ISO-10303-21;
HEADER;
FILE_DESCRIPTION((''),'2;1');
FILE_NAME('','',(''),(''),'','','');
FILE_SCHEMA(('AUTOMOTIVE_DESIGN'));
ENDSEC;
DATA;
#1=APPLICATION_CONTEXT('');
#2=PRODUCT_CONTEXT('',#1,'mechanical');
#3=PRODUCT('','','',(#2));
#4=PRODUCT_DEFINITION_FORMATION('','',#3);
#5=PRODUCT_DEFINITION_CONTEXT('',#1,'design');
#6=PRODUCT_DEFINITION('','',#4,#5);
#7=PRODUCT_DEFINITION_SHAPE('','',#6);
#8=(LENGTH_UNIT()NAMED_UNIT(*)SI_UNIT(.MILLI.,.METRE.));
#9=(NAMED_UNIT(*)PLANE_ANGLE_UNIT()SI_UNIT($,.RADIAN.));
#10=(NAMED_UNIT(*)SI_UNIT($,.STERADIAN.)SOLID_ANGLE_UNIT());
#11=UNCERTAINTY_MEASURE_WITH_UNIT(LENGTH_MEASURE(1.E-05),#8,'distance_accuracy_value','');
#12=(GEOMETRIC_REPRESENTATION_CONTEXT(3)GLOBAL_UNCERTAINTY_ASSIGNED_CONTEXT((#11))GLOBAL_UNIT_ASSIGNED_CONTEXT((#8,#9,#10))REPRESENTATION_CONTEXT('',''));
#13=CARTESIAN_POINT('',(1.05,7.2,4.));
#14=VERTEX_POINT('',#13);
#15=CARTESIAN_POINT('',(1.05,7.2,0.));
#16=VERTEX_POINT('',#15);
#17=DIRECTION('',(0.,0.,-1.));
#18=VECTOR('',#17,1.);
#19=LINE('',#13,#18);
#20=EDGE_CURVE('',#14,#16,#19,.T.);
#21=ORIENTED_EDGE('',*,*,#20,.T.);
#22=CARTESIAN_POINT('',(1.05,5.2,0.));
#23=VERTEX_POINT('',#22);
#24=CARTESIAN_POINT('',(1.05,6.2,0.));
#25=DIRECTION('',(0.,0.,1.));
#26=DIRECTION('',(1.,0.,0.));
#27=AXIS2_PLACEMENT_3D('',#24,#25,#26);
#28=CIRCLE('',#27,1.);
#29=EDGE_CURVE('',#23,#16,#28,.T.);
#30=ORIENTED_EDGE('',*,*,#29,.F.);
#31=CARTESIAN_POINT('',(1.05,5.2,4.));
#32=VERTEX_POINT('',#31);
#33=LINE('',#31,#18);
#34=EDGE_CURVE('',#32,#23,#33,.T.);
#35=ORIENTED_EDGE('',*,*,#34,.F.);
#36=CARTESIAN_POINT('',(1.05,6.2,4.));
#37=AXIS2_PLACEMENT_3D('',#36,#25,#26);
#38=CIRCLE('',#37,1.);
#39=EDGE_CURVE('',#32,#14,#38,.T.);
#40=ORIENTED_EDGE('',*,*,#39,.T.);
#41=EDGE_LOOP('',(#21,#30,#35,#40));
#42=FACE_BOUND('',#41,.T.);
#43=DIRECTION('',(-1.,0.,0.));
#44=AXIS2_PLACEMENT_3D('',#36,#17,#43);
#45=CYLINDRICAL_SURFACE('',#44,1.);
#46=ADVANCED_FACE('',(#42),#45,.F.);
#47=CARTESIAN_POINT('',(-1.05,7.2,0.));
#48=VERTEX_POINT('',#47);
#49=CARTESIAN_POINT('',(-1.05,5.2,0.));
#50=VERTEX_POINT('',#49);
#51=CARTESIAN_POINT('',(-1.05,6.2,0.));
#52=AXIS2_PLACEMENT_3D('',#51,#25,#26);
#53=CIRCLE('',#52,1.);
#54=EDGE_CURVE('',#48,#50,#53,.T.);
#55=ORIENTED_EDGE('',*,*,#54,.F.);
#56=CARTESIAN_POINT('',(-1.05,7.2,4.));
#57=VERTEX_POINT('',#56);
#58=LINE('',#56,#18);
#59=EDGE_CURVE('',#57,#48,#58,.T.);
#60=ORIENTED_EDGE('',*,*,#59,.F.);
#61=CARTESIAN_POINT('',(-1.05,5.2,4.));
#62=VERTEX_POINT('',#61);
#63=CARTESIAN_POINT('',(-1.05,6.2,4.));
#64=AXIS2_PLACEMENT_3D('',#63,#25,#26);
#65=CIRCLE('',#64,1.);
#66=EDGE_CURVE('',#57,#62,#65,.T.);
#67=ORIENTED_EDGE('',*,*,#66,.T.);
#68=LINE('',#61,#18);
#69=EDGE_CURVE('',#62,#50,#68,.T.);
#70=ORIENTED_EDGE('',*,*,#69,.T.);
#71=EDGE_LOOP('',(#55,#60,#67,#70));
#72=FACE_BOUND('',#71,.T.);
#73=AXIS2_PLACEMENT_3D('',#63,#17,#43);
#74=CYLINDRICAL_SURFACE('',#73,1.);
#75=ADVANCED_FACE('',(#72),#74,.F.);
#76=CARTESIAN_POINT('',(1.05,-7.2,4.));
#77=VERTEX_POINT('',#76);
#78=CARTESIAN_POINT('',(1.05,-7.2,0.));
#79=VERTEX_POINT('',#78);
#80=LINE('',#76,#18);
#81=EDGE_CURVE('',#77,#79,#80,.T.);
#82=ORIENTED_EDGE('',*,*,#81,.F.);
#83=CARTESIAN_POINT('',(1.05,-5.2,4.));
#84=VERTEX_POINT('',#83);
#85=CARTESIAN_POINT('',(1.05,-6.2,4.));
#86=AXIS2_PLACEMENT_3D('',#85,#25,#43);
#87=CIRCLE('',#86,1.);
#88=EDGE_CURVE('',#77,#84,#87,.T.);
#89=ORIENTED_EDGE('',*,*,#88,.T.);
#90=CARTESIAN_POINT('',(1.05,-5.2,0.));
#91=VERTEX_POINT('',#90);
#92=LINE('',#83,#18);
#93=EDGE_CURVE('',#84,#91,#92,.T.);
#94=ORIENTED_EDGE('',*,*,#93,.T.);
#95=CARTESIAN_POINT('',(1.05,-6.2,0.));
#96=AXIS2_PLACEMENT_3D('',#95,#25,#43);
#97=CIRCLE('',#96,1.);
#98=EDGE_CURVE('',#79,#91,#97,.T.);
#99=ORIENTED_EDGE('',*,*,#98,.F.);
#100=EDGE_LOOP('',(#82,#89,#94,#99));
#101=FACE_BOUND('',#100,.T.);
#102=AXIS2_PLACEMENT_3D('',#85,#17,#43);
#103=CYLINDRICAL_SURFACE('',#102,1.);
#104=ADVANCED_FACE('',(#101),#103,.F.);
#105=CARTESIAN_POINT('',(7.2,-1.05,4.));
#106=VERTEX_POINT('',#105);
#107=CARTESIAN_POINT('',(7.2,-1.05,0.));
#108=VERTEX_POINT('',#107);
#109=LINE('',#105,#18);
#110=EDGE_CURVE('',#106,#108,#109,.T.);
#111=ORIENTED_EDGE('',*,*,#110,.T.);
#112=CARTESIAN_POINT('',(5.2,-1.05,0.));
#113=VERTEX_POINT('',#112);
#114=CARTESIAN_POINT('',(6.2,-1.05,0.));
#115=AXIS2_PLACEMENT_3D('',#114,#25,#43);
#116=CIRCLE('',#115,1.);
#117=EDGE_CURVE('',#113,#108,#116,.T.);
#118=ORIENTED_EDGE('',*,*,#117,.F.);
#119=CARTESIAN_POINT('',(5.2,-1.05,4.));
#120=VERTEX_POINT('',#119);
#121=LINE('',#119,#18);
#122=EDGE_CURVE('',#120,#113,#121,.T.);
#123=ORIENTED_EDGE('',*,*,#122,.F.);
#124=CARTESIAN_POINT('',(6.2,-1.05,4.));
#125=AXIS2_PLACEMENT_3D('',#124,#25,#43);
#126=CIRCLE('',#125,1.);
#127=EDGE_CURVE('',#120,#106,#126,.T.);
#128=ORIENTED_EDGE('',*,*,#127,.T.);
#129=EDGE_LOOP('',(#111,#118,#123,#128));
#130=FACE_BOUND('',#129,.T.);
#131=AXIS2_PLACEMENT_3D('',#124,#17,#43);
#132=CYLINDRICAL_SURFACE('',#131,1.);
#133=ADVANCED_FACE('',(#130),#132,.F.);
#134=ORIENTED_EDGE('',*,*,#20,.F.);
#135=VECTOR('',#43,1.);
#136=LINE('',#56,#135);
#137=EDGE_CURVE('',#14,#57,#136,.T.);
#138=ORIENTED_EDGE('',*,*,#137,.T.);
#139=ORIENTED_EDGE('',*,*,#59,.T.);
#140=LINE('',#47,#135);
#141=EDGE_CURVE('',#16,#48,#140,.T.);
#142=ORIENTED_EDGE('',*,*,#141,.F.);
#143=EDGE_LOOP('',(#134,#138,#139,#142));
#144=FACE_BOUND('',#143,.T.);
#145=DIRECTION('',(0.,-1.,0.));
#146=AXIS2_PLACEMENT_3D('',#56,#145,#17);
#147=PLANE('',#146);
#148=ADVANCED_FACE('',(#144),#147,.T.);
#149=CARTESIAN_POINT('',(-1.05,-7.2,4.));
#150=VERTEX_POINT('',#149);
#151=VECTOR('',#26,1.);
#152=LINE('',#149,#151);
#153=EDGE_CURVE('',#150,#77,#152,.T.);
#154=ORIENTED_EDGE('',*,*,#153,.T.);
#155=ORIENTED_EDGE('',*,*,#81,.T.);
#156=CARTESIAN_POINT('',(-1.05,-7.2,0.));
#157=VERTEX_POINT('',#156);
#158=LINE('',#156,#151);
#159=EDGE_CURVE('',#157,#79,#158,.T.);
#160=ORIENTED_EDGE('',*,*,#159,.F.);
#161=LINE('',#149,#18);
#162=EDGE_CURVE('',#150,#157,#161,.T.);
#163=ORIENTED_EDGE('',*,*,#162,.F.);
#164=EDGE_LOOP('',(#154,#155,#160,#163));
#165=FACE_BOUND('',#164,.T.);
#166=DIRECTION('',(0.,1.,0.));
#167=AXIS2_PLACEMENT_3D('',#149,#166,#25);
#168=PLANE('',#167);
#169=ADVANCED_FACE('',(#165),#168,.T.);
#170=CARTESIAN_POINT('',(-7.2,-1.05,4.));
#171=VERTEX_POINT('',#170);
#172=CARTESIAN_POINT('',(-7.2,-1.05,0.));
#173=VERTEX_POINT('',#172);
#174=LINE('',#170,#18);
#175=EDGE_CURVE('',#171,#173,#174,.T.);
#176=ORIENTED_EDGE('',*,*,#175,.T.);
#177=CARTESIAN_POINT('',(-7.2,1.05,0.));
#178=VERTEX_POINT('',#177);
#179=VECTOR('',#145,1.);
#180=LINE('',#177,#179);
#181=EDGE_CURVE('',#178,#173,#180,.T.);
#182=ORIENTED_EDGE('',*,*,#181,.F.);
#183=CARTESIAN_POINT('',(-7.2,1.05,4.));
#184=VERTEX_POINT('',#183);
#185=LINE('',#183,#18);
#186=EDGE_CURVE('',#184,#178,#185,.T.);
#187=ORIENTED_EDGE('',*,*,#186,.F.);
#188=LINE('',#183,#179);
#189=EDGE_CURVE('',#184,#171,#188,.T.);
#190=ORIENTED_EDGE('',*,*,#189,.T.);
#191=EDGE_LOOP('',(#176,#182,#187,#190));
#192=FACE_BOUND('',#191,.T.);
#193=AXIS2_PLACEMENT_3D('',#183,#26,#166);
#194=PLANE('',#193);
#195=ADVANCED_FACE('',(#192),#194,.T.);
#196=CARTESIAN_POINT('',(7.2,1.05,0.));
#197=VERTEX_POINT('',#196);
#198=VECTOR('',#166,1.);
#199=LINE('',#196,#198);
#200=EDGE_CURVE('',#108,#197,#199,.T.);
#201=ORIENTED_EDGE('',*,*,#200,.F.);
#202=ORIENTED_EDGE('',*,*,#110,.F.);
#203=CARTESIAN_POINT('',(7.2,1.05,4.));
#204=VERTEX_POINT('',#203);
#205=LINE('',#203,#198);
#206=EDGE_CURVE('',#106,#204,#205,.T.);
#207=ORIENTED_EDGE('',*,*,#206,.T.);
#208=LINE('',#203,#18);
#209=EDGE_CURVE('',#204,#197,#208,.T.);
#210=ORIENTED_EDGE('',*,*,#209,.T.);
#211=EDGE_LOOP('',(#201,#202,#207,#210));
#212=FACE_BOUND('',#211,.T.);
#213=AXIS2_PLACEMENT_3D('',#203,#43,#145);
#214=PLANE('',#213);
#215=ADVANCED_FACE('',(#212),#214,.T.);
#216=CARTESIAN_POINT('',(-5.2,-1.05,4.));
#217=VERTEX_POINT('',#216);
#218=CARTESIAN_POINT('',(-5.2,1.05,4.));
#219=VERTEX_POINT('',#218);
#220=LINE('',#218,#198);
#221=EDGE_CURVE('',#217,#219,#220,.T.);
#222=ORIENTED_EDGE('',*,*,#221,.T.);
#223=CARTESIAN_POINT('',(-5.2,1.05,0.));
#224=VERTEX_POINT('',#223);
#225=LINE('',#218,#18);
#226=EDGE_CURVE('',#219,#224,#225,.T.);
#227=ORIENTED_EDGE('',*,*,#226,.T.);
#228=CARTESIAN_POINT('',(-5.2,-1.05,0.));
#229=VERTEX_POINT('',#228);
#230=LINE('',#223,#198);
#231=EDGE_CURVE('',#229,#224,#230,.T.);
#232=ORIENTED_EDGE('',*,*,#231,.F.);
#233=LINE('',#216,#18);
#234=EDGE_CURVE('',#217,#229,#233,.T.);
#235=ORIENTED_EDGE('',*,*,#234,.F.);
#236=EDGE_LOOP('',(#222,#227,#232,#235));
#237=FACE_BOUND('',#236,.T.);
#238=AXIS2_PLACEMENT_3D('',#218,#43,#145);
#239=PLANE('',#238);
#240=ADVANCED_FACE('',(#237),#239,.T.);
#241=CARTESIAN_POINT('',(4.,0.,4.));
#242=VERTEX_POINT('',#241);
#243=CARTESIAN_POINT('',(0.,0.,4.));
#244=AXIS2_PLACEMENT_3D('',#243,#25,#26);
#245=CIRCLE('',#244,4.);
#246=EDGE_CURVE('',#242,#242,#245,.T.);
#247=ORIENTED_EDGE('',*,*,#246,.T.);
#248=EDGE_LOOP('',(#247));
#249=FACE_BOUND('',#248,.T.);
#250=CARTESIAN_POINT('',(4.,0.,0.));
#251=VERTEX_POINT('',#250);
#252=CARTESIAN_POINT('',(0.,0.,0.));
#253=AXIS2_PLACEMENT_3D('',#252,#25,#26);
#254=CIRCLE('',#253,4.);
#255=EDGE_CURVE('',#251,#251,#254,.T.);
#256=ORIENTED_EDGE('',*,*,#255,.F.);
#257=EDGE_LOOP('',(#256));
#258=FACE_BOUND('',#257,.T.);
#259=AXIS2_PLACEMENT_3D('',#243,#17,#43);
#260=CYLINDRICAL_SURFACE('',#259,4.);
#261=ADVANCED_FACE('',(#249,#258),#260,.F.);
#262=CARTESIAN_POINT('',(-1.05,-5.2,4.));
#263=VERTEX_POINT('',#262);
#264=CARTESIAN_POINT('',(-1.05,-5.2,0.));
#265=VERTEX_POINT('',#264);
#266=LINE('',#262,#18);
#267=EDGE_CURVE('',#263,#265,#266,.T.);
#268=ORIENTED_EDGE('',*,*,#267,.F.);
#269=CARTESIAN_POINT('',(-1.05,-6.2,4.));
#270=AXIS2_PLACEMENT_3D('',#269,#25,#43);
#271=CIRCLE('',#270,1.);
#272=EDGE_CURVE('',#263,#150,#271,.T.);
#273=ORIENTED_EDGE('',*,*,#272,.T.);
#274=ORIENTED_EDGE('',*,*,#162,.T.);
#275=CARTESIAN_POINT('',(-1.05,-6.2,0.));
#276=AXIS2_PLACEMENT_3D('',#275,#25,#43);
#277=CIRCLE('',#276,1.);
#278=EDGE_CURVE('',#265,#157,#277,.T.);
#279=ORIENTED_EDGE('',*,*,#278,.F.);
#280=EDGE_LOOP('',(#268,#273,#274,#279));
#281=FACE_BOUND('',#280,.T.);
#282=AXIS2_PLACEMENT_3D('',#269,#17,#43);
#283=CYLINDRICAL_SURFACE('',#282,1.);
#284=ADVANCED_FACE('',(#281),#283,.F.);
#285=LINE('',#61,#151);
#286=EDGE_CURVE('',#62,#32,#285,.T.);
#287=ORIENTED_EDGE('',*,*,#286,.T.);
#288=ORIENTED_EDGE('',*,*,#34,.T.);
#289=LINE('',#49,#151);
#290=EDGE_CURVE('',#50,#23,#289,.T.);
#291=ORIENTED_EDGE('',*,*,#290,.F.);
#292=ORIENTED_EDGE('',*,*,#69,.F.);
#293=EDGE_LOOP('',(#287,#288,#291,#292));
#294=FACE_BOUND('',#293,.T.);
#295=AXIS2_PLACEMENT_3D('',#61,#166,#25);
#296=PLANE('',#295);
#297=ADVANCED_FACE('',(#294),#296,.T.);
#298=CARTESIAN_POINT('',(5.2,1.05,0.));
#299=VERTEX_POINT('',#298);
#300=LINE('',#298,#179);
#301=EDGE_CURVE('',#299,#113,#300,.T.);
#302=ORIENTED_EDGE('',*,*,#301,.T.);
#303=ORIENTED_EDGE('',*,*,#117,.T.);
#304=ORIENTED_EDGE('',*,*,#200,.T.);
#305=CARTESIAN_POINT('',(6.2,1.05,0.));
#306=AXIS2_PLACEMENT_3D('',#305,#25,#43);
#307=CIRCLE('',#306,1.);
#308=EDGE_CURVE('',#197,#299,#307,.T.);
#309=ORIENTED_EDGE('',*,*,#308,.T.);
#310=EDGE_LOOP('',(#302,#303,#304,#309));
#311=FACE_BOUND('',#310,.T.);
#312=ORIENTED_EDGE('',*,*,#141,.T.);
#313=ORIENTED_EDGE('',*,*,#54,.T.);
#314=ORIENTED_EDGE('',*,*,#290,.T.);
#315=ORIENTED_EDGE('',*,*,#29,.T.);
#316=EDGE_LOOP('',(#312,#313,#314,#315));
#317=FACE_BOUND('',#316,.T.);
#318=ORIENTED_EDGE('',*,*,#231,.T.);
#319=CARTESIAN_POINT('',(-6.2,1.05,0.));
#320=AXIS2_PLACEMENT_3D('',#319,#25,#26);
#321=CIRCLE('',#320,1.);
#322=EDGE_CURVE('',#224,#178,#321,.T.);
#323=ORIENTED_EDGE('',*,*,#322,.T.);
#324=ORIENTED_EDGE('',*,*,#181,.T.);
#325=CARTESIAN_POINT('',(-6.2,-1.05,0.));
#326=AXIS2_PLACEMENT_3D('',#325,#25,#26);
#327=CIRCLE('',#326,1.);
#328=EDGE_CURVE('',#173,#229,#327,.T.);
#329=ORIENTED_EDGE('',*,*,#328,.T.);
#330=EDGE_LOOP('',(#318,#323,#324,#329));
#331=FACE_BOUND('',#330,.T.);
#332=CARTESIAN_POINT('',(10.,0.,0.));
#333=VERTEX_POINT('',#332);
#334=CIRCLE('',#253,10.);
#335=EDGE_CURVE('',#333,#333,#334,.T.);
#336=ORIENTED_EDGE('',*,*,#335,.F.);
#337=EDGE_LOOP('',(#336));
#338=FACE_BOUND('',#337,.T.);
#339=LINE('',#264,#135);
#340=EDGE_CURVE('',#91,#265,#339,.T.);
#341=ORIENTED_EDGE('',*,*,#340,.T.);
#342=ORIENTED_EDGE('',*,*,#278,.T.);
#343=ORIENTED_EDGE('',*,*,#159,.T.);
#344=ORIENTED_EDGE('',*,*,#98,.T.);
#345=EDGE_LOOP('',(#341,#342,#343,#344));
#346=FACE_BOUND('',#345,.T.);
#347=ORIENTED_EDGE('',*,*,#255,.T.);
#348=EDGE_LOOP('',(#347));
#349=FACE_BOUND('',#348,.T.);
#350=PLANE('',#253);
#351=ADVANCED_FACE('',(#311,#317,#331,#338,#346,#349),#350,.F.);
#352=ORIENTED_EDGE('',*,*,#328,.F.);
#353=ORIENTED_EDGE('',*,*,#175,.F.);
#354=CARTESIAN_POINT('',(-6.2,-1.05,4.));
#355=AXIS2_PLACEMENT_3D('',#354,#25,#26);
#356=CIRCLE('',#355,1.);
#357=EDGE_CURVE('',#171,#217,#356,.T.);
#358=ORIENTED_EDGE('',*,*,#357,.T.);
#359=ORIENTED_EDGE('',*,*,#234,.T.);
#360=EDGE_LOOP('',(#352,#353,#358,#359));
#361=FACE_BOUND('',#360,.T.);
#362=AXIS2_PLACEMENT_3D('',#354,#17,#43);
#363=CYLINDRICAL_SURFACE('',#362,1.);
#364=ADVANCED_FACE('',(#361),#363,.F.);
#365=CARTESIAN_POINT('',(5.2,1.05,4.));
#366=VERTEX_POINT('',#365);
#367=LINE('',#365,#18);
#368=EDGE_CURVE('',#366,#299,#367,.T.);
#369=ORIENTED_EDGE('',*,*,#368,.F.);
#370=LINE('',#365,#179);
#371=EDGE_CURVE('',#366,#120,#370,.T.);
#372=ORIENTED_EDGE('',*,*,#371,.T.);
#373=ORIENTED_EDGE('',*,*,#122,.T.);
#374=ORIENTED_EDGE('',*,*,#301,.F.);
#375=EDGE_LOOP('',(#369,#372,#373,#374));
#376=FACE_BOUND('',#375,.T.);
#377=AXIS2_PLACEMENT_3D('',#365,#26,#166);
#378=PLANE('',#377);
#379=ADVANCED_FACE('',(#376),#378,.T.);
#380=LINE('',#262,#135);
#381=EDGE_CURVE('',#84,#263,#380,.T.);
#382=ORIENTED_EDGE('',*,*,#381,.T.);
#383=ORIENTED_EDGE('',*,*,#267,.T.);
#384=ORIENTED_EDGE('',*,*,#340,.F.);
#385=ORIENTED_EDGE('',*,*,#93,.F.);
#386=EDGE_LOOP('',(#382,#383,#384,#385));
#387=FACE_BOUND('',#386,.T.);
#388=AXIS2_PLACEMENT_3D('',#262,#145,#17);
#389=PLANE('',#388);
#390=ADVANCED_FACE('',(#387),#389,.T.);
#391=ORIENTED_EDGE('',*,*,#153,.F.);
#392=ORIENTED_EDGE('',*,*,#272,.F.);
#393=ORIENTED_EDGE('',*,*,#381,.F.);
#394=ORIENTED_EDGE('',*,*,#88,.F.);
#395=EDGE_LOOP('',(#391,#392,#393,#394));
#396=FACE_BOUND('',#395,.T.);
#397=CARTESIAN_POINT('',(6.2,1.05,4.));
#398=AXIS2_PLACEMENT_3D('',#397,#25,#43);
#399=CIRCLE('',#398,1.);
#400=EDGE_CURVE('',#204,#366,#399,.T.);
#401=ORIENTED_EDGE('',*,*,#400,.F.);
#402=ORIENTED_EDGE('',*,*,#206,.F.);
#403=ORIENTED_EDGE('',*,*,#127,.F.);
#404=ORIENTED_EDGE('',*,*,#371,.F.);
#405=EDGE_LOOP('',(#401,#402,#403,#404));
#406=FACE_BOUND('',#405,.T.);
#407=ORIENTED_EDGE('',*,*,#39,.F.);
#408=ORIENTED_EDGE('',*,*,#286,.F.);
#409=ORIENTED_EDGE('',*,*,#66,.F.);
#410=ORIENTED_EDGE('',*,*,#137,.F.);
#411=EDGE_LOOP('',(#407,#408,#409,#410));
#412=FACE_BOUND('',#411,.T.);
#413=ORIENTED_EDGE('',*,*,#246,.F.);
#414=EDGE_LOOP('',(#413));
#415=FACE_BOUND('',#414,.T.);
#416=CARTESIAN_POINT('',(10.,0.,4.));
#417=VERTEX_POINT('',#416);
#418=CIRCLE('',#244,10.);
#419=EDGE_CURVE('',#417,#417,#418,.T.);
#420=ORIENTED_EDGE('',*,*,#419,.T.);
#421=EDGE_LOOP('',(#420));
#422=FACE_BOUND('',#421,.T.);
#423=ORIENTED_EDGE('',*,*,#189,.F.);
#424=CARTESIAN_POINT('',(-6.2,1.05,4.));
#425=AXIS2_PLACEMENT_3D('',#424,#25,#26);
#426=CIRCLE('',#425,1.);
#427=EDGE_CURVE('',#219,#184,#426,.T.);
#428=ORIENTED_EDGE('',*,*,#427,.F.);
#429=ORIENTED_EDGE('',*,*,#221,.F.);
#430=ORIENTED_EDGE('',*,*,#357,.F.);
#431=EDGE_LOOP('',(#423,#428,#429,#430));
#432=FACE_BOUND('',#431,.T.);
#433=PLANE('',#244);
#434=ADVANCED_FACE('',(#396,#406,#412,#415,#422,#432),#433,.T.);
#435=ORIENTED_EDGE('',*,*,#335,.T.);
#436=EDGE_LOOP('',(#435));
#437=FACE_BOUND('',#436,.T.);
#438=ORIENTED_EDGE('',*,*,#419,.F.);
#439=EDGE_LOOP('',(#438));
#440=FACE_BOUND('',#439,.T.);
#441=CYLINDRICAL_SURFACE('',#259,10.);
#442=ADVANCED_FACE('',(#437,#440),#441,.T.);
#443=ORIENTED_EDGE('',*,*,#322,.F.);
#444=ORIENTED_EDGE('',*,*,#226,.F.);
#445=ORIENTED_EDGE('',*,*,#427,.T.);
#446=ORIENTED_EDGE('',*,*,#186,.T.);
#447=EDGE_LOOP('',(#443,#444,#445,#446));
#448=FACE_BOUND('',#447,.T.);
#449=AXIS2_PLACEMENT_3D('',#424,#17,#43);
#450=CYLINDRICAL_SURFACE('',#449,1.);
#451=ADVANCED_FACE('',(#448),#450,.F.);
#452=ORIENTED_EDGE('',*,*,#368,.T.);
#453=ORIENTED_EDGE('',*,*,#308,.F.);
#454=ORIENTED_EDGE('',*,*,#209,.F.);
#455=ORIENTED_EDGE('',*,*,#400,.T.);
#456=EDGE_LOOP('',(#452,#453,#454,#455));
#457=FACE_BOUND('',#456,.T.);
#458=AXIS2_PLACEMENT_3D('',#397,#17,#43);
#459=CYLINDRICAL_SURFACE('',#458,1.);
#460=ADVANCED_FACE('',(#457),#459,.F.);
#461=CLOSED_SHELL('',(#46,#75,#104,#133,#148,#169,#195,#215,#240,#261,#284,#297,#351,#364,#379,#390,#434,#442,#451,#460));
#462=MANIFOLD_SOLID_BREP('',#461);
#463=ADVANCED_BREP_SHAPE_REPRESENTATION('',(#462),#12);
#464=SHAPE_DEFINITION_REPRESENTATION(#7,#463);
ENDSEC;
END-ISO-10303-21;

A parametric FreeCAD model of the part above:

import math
import FreeCAD as App
import Part
import Sketcher

V = App.Vector

doc = App.newDocument("Part")
body = doc.addObject("PartDesign::Body", "Body")

# Sketch on XY plane
sketch1 = body.newObject("Sketcher::SketchObject", "Sketch")
sketch1.AttachmentSupport = (doc.getObject("XY_Plane"), [""])
sketch1.MapMode = "FlatFace"
sketch1.addGeometry(Part.Circle(V(0, 0, 0), V(0, 0, 1), 10), False)
sketch1.addConstraint([
    Sketcher.Constraint("Coincident", 0, 3, -1, 1),
    Sketcher.Constraint("Diameter", 0, 20.0),
])
pad1 = body.newObject("PartDesign::Pad", "Pad")
pad1.Profile = sketch1
pad1.Length = 4

# Sketch on XY plane
sketch2 = body.newObject("Sketcher::SketchObject", "Sketch001")
sketch2.AttachmentSupport = (doc.getObject("XY_Plane"), [""])
sketch2.MapMode = "FlatFace"
sketch2.addGeometry([
    Part.Circle(V(0, 0, 0), V(0, 0, 1), 4),  # 0
    Part.LineSegment(V(1.1, 7.2, 0), V(-1.1, 7.2, 0)),  # 1
    Part.ArcOfCircle(Part.Circle(V(-1.1, 6.2, 0), V(0, 0, 1), 1), math.radians(90), math.radians(270)),  # 2
    Part.LineSegment(V(-1.1, 5.2, 0), V(1.1, 5.2, 0)),  # 3
    Part.ArcOfCircle(Part.Circle(V(1.1, 6.2, 0), V(0, 0, 1), 1), math.radians(-90), math.radians(90)),  # 4
    Part.LineSegment(V(-5.2, -1.1, 0), V(-5.2, 1.1, 0)),  # 5
    Part.ArcOfCircle(Part.Circle(V(-6.2, 1.1, 0), V(0, 0, 1), 1), math.radians(0), math.radians(180)),  # 6
    Part.LineSegment(V(-7.2, 1.1, 0), V(-7.2, -1.1, 0)),  # 7
    Part.ArcOfCircle(Part.Circle(V(-6.2, -1.1, 0), V(0, 0, 1), 1), math.radians(180), math.radians(360)),  # 8
    Part.LineSegment(V(5.2, 1.1, 0), V(5.2, -1.1, 0)),  # 9
    Part.ArcOfCircle(Part.Circle(V(6.2, -1.1, 0), V(0, 0, 1), 1), math.radians(180), math.radians(360)),  # 10
    Part.LineSegment(V(7.2, -1.1, 0), V(7.2, 1.1, 0)),  # 11
    Part.ArcOfCircle(Part.Circle(V(6.2, 1.1, 0), V(0, 0, 1), 1), math.radians(0), math.radians(180)),  # 12
    Part.LineSegment(V(-1.1, -7.2, 0), V(1.1, -7.2, 0)),  # 13
    Part.ArcOfCircle(Part.Circle(V(1.1, -6.2, 0), V(0, 0, 1), 1), math.radians(-90), math.radians(90)),  # 14
    Part.LineSegment(V(1.1, -5.2, 0), V(-1.1, -5.2, 0)),  # 15
    Part.ArcOfCircle(Part.Circle(V(-1.1, -6.2, 0), V(0, 0, 1), 1), math.radians(90), math.radians(270)),  # 16
], False)
sketch2.addConstraint([
    Sketcher.Constraint("Tangent", 1, 2, 2, 1),
    Sketcher.Constraint("Tangent", 2, 2, 3, 1),
    Sketcher.Constraint("Tangent", 3, 2, 4, 1),
    Sketcher.Constraint("Tangent", 4, 2, 1, 1),
    Sketcher.Constraint("Tangent", 5, 2, 6, 1),
    Sketcher.Constraint("Tangent", 6, 2, 7, 1),
    Sketcher.Constraint("Tangent", 7, 2, 8, 1),
    Sketcher.Constraint("Tangent", 8, 2, 5, 1),
    Sketcher.Constraint("Tangent", 9, 2, 10, 1),
    Sketcher.Constraint("Tangent", 10, 2, 11, 1),
    Sketcher.Constraint("Tangent", 11, 2, 12, 1),
    Sketcher.Constraint("Tangent", 12, 2, 9, 1),
    Sketcher.Constraint("Tangent", 13, 2, 14, 1),
    Sketcher.Constraint("Tangent", 14, 2, 15, 1),
    Sketcher.Constraint("Tangent", 15, 2, 16, 1),
    Sketcher.Constraint("Tangent", 16, 2, 13, 1),
    Sketcher.Constraint("Horizontal", 1),
    Sketcher.Constraint("Horizontal", 3),
    Sketcher.Constraint("Vertical", 5),
    Sketcher.Constraint("Vertical", 7),
    Sketcher.Constraint("Vertical", 9),
    Sketcher.Constraint("Vertical", 11),
    Sketcher.Constraint("Horizontal", 13),
    Sketcher.Constraint("Horizontal", 15),
    Sketcher.Constraint("Coincident", 0, 3, -1, 1),
    Sketcher.Constraint("Equal", 4, 6),
    Sketcher.Constraint("Equal", 8, 10),
    Sketcher.Constraint("Equal", 12, 14),
    Sketcher.Constraint("Symmetric", 6, 3, 10, 3, -1, 1),
    Sketcher.Constraint("Symmetric", 2, 3, 14, 3, -1, 1),
    Sketcher.Constraint("Horizontal", 8, 3, 10, 3),
    Sketcher.Constraint("Horizontal", 6, 3, 12, 3),
    Sketcher.Constraint("Vertical", 4, 3, 14, 3),
    Sketcher.Constraint("Vertical", 2, 3, 16, 3),
    Sketcher.Constraint("Equal", 15, 5),
    Sketcher.Constraint("Diameter", 0, 8.0),
    Sketcher.Constraint("Radius", 2, 1.0),
    Sketcher.Constraint("DistanceX", 1, 2, 1, 1, 2.1),
    Sketcher.Constraint("DistanceY", -1, 1, 2, 3, 6.2),
    Sketcher.Constraint("DistanceX", 6, 3, -1, 1, 6.2),
])
pocket1 = body.newObject("PartDesign::Pocket", "Pocket")
pocket1.Profile = sketch2
pocket1.Length = 4
pocket1.Reversed = True

doc.recompute()
